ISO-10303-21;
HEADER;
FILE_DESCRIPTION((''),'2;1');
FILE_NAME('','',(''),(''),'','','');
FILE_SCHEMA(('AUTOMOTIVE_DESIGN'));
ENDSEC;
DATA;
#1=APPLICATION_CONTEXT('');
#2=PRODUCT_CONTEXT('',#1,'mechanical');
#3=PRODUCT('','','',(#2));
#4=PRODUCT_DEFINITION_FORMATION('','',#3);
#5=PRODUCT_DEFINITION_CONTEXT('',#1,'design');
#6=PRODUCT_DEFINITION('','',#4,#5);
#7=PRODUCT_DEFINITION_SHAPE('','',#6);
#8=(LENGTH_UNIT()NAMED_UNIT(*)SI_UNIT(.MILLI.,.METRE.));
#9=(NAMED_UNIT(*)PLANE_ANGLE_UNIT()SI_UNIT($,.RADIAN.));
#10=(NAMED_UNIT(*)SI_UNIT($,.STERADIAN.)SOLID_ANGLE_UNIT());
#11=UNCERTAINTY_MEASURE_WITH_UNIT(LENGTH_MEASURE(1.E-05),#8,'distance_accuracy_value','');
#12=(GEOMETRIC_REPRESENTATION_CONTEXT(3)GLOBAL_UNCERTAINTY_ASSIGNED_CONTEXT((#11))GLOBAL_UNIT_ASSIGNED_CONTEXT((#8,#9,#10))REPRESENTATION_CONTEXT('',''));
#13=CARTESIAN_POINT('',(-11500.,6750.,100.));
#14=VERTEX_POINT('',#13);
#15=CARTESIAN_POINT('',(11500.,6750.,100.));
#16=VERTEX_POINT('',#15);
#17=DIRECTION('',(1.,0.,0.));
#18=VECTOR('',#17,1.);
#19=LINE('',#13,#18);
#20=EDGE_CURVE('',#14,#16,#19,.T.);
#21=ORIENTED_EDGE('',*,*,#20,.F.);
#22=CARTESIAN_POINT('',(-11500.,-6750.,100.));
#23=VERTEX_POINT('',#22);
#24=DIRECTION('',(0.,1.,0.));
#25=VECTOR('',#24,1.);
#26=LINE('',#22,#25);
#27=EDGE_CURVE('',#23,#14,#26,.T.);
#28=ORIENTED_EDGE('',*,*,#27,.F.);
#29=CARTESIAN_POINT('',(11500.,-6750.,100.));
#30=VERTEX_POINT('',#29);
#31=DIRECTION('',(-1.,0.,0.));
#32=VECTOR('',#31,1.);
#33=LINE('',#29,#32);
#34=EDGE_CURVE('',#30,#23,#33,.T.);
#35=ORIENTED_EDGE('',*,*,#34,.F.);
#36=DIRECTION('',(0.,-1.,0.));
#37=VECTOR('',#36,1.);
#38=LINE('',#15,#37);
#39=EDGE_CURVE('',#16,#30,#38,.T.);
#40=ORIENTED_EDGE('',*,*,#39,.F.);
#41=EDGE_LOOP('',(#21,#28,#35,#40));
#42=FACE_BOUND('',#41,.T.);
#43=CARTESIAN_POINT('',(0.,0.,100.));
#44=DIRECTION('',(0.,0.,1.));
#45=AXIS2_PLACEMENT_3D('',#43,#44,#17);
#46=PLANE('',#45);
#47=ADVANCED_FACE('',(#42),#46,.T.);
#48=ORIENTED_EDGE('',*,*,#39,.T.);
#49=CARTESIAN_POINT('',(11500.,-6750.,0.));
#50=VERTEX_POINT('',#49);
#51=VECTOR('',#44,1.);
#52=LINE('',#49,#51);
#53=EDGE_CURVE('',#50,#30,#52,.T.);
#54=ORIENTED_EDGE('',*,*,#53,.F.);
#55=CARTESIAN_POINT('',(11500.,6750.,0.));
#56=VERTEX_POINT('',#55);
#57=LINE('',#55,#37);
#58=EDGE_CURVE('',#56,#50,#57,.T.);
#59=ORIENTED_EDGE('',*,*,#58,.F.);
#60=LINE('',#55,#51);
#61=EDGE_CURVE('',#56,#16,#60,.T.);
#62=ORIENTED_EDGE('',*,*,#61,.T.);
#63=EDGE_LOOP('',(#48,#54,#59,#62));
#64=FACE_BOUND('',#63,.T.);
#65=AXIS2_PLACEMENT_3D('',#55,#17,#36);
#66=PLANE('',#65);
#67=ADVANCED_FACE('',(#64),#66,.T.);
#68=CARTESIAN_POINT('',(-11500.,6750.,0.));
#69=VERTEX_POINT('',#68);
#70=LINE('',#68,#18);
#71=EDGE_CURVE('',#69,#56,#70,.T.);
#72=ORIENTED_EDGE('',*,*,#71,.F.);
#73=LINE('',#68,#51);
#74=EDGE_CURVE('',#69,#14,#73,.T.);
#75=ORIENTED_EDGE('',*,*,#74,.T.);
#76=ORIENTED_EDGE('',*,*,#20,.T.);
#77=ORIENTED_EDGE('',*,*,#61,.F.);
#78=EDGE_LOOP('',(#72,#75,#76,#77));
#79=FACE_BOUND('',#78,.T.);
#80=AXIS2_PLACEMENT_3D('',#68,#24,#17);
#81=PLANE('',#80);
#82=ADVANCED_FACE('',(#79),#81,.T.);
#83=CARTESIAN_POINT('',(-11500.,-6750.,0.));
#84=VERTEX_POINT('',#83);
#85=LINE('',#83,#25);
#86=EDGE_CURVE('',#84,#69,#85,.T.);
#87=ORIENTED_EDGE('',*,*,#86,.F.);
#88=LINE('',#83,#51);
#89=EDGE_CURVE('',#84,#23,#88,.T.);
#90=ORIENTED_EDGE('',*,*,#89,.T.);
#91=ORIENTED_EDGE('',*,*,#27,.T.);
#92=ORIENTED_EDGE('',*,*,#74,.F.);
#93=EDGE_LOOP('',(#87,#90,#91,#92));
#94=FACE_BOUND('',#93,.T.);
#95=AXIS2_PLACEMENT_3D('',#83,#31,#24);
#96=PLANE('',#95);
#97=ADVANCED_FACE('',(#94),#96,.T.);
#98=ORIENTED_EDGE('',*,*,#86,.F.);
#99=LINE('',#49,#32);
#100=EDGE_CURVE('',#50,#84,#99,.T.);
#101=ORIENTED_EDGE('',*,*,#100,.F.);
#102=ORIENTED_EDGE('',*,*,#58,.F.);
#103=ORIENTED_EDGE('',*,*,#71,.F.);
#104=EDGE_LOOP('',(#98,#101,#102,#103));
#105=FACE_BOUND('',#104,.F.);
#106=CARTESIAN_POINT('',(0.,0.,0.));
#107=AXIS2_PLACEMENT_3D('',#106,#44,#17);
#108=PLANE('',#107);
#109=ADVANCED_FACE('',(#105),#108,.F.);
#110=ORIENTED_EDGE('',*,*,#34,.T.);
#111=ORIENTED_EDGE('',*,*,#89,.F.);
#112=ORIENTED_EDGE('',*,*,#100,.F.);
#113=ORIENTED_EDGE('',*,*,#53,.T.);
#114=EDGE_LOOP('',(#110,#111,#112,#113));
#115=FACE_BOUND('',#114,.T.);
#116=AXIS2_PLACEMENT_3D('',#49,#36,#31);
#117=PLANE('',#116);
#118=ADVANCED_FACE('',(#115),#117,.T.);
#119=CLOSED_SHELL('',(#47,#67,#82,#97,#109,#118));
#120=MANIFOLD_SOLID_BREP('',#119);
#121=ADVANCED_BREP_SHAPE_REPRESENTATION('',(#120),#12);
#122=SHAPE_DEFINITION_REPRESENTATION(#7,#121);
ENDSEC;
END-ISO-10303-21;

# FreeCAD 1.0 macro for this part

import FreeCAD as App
import Part
import Sketcher
Q = App.Units.Quantity


def add_polygon(sketch, points):
    """Adds a closed chain of lines whose ends are joined by coincident constraints."""
    first, n = sketch.GeometryCount, len(points)
    for a, b in zip(points, points[1:] + points[:1]):
        sketch.addGeometry(Part.LineSegment(App.Vector(*a, 0), App.Vector(*b, 0)), False)
    for i in range(n):
        sketch.addConstraint(Sketcher.Constraint("Coincident", first + i, 2, first + (i + 1) % n, 1))

doc = App.newDocument("Part")
body = doc.addObject("PartDesign::Body", "Body")

# Sketch on XY plane
sketch1 = body.newObject("Sketcher::SketchObject", "Sketch")
sketch1.AttachmentSupport = (doc.getObject("XY_Plane"), [""])
sketch1.MapMode = "FlatFace"
add_polygon(sketch1, [(11500, 6750), (-11500, 6750), (-11500, -6750), (11500, -6750)])  # lines 0-3
sketch1.addConstraint([
    Sketcher.Constraint("Horizontal", 0),
    Sketcher.Constraint("Vertical", 1),
    Sketcher.Constraint("Horizontal", 2),
    Sketcher.Constraint("Vertical", 3),
    Sketcher.Constraint("Symmetric", 0, 2, 2, 2, -1, 1),
    Sketcher.Constraint("DistanceX", 0, 2, 0, 1, Q("23000 mm")),
    Sketcher.Constraint("DistanceY", 1, 2, 1, 1, Q("13500 mm")),
])
pad1 = body.newObject("PartDesign::Pad", "Pad")
pad1.Profile = sketch1
pad1.Length = 100

doc.recompute()
